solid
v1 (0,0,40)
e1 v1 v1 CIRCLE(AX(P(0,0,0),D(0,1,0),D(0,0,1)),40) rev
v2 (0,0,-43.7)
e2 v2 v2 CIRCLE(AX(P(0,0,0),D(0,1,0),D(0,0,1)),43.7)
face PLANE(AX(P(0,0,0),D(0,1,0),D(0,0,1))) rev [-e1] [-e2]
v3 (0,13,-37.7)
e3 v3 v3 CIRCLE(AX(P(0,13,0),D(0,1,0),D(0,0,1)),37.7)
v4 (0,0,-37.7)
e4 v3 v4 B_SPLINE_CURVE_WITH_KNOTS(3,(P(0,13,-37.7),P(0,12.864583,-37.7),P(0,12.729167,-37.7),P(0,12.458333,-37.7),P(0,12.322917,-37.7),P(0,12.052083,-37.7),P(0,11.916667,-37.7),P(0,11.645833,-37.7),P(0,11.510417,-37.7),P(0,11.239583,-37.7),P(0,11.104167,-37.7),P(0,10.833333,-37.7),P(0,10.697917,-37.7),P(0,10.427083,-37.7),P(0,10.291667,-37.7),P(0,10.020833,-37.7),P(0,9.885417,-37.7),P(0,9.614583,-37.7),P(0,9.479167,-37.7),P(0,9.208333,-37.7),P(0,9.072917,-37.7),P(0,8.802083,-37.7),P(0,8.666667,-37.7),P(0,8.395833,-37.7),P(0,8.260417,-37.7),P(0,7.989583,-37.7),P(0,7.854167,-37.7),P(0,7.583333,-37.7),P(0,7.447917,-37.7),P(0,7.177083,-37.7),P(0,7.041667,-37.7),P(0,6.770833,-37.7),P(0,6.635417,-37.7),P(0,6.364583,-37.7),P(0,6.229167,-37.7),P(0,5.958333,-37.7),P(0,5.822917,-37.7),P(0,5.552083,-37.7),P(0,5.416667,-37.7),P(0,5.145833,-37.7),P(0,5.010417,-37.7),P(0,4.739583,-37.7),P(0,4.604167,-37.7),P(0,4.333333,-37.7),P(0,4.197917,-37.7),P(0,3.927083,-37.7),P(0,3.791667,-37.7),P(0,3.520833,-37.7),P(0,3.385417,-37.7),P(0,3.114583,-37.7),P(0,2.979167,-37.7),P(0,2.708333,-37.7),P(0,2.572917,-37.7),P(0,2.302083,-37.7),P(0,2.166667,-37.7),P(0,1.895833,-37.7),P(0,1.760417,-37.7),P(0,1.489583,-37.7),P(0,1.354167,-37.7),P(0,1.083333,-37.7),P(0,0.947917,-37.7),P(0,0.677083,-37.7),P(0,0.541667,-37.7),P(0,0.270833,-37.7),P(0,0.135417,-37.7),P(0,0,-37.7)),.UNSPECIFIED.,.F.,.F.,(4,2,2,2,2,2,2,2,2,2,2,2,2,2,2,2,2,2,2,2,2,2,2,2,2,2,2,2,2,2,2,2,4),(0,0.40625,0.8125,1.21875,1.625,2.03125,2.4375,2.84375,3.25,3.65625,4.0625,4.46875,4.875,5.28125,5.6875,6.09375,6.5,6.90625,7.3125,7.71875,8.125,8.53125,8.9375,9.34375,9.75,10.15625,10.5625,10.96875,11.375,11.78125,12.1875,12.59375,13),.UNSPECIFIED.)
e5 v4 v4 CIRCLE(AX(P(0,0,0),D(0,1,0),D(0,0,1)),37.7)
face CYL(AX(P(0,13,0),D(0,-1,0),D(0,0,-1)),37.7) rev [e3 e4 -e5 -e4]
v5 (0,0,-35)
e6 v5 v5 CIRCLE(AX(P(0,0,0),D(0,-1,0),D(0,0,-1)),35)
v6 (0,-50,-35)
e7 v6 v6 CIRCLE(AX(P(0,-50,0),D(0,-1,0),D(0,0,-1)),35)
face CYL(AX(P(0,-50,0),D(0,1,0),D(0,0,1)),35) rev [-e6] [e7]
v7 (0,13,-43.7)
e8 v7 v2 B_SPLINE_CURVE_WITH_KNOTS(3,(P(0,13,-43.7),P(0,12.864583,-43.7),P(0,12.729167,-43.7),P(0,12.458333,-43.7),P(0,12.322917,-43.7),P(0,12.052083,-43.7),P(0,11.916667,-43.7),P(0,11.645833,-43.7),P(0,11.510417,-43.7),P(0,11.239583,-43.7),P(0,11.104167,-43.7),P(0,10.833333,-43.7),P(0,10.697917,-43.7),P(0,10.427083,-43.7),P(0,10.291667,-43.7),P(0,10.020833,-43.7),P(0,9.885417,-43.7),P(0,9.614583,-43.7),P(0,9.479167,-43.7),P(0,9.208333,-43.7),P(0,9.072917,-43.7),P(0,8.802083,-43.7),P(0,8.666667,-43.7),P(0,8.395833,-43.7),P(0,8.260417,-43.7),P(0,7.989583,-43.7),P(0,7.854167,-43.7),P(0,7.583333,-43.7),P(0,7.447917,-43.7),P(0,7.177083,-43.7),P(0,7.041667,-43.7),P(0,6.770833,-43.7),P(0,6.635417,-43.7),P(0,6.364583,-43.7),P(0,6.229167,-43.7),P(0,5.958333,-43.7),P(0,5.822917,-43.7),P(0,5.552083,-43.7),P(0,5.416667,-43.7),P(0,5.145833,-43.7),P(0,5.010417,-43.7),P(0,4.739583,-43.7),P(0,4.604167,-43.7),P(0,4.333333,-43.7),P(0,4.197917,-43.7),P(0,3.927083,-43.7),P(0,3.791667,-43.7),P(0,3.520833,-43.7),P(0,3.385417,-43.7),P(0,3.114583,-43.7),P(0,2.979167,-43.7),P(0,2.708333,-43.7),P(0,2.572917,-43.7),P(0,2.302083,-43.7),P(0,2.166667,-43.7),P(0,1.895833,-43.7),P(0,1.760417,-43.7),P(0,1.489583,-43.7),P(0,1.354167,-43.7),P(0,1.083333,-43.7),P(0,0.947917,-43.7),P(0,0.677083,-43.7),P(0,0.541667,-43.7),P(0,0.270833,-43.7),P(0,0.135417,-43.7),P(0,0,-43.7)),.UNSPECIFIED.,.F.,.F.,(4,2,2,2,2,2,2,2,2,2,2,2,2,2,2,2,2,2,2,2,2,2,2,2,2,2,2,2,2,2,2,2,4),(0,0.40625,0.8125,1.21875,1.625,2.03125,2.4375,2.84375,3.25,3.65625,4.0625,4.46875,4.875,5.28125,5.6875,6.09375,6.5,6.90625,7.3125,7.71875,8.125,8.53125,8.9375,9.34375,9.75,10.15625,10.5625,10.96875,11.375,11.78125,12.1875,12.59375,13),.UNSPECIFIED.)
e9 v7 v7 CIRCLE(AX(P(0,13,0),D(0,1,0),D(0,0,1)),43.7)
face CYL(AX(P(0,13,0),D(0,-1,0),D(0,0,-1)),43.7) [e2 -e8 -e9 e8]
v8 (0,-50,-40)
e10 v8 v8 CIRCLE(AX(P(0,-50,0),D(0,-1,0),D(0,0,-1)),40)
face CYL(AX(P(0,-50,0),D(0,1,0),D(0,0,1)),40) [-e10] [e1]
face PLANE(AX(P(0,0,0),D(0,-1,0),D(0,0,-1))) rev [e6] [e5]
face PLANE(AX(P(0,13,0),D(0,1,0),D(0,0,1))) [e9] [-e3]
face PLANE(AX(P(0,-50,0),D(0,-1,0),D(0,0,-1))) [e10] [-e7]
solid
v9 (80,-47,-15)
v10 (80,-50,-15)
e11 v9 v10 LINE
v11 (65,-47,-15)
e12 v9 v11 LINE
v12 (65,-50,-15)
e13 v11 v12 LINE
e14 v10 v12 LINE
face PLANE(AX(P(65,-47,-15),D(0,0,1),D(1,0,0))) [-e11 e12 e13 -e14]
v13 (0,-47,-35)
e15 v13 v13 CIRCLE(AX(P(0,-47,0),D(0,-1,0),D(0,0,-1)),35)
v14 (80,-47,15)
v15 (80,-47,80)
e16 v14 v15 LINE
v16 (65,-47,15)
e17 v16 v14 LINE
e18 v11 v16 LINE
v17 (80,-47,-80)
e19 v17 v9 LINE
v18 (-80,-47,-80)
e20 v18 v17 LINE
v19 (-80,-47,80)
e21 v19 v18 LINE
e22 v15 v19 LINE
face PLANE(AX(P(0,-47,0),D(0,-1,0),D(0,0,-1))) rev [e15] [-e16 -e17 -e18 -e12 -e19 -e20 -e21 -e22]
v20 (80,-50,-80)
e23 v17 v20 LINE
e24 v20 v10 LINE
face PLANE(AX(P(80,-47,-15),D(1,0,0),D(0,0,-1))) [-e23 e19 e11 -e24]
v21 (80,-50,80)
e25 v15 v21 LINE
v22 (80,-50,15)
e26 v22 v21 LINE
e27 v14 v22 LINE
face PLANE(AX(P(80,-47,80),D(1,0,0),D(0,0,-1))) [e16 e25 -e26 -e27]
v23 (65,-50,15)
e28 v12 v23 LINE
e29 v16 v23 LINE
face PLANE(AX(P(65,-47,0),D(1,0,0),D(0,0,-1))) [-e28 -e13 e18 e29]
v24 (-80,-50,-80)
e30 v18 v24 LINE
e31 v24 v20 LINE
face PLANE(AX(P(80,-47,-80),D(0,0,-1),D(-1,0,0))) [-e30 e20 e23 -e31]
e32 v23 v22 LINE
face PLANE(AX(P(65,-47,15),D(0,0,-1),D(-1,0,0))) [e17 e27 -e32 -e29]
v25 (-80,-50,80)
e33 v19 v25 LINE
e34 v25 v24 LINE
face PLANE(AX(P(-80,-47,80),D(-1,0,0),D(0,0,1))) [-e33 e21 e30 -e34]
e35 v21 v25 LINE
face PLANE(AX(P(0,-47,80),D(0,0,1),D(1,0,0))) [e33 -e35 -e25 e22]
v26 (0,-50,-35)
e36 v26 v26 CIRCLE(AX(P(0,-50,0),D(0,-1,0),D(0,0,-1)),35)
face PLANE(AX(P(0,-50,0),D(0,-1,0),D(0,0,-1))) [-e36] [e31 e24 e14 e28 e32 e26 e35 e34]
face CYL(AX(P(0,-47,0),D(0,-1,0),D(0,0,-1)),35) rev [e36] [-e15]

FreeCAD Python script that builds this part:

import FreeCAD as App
import Part
import Sketcher

V = App.Vector
Q = App.Units.Quantity

doc = App.newDocument("Part")
body = doc.addObject("PartDesign::Body", "Body")

# Sketch on XZ plane
sketch1 = doc.addObject("Sketcher::SketchObject", "Sketch")
body.addObject(sketch1)
sketch1.AttachmentSupport = (doc.XZ_Plane, [""])
sketch1.MapMode = "FlatFace"
sketch1.addGeometry([
    Part.Circle(V(0, 0, 0), V(0, 0, 1), 44),
    Part.Circle(V(0, 0, 0), V(0, 0, 1), 38),
], False)
sketch1.addConstraint([
    Sketcher.Constraint("Coincident", 0, 3, -1, 1),
    Sketcher.Constraint("Coincident", 1, 3, -1, 1),
    Sketcher.Constraint("Diameter", 0, Q("87.4 mm")),
    Sketcher.Constraint("Diameter", 1, Q("75.4 mm")),
])
pad1 = doc.addObject("PartDesign::Pad", "Pad")
body.addObject(pad1)
pad1.Profile = sketch1
pad1.Length = 13
pad1.Reversed = True

# Sketch on XZ plane
sketch2 = doc.addObject("Sketcher::SketchObject", "Sketch001")
body.addObject(sketch2)
sketch2.AttachmentSupport = (doc.XZ_Plane, [""])
sketch2.MapMode = "FlatFace"
sketch2.addGeometry([
    Part.Circle(V(0, 0, 0), V(0, 0, 1), 40),
    Part.Circle(V(0, 0, 0), V(0, 0, 1), 35),
], False)
sketch2.addConstraint([
    Sketcher.Constraint("Coincident", 0, 3, -1, 1),
    Sketcher.Constraint("Coincident", 1, 3, -1, 1),
    Sketcher.Constraint("Diameter", 0, Q("80 mm")),
    Sketcher.Constraint("Diameter", 1, Q("70 mm")),
])
pad2 = doc.addObject("PartDesign::Pad", "Pad001")
body.addObject(pad2)
pad2.Profile = sketch2
pad2.Length = 50
body2 = doc.addObject("PartDesign::Body", "Body001")

# Sketch on XZ plane
sketch3 = doc.addObject("Sketcher::SketchObject", "Sketch002")
body2.addObject(sketch3)
sketch3.AttachmentSupport = (doc.getObject("XZ_Plane001"), [""])
sketch3.MapMode = "FlatFace"
sketch3.AttachmentOffset = App.Placement(V(0, 0, 50), App.Rotation())
sketch3.addGeometry([
    Part.LineSegment(V(80, 80, 0), V(-80, 80, 0)),  # 0
    Part.LineSegment(V(-80, 80, 0), V(-80, -80, 0)),  # 1
    Part.LineSegment(V(-80, -80, 0), V(80, -80, 0)),  # 2
    Part.LineSegment(V(80, -80, 0), V(80, -15, 0)),  # 3
    Part.LineSegment(V(80, -15, 0), V(65, -15, 0)),  # 4
    Part.LineSegment(V(65, -15, 0), V(65, 15, 0)),  # 5
    Part.LineSegment(V(65, 15, 0), V(80, 15, 0)),  # 6
    Part.LineSegment(V(80, 15, 0), V(80, 80, 0)),  # 7
    Part.Circle(V(0, 0, 0), V(0, 0, 1), 35),  # 8
], False)
sketch3.addConstraint([
    Sketcher.Constraint("Coincident", 0, 2, 1, 1),
    Sketcher.Constraint("Coincident", 1, 2, 2, 1),
    Sketcher.Constraint("Coincident", 2, 2, 3, 1),
    Sketcher.Constraint("Coincident", 3, 2, 4, 1),
    Sketcher.Constraint("Coincident", 4, 2, 5, 1),
    Sketcher.Constraint("Coincident", 5, 2, 6, 1),
    Sketcher.Constraint("Coincident", 6, 2, 7, 1),
    Sketcher.Constraint("Coincident", 7, 2, 0, 1),
    Sketcher.Constraint("Horizontal", 0),
    Sketcher.Constraint("Vertical", 1),
    Sketcher.Constraint("Horizontal", 2),
    Sketcher.Constraint("Vertical", 3),
    Sketcher.Constraint("Horizontal", 4),
    Sketcher.Constraint("Vertical", 5),
    Sketcher.Constraint("Horizontal", 6),
    Sketcher.Constraint("Vertical", 7),
    Sketcher.Constraint("Coincident", 8, 3, -1, 1),
    Sketcher.Constraint("Symmetric", 0, 2, 2, 2, -1, 1),
    Sketcher.Constraint("Symmetric", 3, 2, 6, 2, -1),
    Sketcher.Constraint("Equal", 2, 1),
    Sketcher.Constraint("Diameter", 8, Q("70 mm")),
    Sketcher.Constraint("DistanceX", 0, 2, 0, 1, Q("160 mm")),
    Sketcher.Constraint("DistanceX", 4, 2, 4, 1, Q("15 mm")),
    Sketcher.Constraint("DistanceY", 3, 1, 3, 2, Q("65 mm")),
])
pad3 = doc.addObject("PartDesign::Pad", "Pad002")
body2.addObject(pad3)
pad3.Profile = sketch3
pad3.Length = 3
pad3.Reversed = True

doc.recompute()
